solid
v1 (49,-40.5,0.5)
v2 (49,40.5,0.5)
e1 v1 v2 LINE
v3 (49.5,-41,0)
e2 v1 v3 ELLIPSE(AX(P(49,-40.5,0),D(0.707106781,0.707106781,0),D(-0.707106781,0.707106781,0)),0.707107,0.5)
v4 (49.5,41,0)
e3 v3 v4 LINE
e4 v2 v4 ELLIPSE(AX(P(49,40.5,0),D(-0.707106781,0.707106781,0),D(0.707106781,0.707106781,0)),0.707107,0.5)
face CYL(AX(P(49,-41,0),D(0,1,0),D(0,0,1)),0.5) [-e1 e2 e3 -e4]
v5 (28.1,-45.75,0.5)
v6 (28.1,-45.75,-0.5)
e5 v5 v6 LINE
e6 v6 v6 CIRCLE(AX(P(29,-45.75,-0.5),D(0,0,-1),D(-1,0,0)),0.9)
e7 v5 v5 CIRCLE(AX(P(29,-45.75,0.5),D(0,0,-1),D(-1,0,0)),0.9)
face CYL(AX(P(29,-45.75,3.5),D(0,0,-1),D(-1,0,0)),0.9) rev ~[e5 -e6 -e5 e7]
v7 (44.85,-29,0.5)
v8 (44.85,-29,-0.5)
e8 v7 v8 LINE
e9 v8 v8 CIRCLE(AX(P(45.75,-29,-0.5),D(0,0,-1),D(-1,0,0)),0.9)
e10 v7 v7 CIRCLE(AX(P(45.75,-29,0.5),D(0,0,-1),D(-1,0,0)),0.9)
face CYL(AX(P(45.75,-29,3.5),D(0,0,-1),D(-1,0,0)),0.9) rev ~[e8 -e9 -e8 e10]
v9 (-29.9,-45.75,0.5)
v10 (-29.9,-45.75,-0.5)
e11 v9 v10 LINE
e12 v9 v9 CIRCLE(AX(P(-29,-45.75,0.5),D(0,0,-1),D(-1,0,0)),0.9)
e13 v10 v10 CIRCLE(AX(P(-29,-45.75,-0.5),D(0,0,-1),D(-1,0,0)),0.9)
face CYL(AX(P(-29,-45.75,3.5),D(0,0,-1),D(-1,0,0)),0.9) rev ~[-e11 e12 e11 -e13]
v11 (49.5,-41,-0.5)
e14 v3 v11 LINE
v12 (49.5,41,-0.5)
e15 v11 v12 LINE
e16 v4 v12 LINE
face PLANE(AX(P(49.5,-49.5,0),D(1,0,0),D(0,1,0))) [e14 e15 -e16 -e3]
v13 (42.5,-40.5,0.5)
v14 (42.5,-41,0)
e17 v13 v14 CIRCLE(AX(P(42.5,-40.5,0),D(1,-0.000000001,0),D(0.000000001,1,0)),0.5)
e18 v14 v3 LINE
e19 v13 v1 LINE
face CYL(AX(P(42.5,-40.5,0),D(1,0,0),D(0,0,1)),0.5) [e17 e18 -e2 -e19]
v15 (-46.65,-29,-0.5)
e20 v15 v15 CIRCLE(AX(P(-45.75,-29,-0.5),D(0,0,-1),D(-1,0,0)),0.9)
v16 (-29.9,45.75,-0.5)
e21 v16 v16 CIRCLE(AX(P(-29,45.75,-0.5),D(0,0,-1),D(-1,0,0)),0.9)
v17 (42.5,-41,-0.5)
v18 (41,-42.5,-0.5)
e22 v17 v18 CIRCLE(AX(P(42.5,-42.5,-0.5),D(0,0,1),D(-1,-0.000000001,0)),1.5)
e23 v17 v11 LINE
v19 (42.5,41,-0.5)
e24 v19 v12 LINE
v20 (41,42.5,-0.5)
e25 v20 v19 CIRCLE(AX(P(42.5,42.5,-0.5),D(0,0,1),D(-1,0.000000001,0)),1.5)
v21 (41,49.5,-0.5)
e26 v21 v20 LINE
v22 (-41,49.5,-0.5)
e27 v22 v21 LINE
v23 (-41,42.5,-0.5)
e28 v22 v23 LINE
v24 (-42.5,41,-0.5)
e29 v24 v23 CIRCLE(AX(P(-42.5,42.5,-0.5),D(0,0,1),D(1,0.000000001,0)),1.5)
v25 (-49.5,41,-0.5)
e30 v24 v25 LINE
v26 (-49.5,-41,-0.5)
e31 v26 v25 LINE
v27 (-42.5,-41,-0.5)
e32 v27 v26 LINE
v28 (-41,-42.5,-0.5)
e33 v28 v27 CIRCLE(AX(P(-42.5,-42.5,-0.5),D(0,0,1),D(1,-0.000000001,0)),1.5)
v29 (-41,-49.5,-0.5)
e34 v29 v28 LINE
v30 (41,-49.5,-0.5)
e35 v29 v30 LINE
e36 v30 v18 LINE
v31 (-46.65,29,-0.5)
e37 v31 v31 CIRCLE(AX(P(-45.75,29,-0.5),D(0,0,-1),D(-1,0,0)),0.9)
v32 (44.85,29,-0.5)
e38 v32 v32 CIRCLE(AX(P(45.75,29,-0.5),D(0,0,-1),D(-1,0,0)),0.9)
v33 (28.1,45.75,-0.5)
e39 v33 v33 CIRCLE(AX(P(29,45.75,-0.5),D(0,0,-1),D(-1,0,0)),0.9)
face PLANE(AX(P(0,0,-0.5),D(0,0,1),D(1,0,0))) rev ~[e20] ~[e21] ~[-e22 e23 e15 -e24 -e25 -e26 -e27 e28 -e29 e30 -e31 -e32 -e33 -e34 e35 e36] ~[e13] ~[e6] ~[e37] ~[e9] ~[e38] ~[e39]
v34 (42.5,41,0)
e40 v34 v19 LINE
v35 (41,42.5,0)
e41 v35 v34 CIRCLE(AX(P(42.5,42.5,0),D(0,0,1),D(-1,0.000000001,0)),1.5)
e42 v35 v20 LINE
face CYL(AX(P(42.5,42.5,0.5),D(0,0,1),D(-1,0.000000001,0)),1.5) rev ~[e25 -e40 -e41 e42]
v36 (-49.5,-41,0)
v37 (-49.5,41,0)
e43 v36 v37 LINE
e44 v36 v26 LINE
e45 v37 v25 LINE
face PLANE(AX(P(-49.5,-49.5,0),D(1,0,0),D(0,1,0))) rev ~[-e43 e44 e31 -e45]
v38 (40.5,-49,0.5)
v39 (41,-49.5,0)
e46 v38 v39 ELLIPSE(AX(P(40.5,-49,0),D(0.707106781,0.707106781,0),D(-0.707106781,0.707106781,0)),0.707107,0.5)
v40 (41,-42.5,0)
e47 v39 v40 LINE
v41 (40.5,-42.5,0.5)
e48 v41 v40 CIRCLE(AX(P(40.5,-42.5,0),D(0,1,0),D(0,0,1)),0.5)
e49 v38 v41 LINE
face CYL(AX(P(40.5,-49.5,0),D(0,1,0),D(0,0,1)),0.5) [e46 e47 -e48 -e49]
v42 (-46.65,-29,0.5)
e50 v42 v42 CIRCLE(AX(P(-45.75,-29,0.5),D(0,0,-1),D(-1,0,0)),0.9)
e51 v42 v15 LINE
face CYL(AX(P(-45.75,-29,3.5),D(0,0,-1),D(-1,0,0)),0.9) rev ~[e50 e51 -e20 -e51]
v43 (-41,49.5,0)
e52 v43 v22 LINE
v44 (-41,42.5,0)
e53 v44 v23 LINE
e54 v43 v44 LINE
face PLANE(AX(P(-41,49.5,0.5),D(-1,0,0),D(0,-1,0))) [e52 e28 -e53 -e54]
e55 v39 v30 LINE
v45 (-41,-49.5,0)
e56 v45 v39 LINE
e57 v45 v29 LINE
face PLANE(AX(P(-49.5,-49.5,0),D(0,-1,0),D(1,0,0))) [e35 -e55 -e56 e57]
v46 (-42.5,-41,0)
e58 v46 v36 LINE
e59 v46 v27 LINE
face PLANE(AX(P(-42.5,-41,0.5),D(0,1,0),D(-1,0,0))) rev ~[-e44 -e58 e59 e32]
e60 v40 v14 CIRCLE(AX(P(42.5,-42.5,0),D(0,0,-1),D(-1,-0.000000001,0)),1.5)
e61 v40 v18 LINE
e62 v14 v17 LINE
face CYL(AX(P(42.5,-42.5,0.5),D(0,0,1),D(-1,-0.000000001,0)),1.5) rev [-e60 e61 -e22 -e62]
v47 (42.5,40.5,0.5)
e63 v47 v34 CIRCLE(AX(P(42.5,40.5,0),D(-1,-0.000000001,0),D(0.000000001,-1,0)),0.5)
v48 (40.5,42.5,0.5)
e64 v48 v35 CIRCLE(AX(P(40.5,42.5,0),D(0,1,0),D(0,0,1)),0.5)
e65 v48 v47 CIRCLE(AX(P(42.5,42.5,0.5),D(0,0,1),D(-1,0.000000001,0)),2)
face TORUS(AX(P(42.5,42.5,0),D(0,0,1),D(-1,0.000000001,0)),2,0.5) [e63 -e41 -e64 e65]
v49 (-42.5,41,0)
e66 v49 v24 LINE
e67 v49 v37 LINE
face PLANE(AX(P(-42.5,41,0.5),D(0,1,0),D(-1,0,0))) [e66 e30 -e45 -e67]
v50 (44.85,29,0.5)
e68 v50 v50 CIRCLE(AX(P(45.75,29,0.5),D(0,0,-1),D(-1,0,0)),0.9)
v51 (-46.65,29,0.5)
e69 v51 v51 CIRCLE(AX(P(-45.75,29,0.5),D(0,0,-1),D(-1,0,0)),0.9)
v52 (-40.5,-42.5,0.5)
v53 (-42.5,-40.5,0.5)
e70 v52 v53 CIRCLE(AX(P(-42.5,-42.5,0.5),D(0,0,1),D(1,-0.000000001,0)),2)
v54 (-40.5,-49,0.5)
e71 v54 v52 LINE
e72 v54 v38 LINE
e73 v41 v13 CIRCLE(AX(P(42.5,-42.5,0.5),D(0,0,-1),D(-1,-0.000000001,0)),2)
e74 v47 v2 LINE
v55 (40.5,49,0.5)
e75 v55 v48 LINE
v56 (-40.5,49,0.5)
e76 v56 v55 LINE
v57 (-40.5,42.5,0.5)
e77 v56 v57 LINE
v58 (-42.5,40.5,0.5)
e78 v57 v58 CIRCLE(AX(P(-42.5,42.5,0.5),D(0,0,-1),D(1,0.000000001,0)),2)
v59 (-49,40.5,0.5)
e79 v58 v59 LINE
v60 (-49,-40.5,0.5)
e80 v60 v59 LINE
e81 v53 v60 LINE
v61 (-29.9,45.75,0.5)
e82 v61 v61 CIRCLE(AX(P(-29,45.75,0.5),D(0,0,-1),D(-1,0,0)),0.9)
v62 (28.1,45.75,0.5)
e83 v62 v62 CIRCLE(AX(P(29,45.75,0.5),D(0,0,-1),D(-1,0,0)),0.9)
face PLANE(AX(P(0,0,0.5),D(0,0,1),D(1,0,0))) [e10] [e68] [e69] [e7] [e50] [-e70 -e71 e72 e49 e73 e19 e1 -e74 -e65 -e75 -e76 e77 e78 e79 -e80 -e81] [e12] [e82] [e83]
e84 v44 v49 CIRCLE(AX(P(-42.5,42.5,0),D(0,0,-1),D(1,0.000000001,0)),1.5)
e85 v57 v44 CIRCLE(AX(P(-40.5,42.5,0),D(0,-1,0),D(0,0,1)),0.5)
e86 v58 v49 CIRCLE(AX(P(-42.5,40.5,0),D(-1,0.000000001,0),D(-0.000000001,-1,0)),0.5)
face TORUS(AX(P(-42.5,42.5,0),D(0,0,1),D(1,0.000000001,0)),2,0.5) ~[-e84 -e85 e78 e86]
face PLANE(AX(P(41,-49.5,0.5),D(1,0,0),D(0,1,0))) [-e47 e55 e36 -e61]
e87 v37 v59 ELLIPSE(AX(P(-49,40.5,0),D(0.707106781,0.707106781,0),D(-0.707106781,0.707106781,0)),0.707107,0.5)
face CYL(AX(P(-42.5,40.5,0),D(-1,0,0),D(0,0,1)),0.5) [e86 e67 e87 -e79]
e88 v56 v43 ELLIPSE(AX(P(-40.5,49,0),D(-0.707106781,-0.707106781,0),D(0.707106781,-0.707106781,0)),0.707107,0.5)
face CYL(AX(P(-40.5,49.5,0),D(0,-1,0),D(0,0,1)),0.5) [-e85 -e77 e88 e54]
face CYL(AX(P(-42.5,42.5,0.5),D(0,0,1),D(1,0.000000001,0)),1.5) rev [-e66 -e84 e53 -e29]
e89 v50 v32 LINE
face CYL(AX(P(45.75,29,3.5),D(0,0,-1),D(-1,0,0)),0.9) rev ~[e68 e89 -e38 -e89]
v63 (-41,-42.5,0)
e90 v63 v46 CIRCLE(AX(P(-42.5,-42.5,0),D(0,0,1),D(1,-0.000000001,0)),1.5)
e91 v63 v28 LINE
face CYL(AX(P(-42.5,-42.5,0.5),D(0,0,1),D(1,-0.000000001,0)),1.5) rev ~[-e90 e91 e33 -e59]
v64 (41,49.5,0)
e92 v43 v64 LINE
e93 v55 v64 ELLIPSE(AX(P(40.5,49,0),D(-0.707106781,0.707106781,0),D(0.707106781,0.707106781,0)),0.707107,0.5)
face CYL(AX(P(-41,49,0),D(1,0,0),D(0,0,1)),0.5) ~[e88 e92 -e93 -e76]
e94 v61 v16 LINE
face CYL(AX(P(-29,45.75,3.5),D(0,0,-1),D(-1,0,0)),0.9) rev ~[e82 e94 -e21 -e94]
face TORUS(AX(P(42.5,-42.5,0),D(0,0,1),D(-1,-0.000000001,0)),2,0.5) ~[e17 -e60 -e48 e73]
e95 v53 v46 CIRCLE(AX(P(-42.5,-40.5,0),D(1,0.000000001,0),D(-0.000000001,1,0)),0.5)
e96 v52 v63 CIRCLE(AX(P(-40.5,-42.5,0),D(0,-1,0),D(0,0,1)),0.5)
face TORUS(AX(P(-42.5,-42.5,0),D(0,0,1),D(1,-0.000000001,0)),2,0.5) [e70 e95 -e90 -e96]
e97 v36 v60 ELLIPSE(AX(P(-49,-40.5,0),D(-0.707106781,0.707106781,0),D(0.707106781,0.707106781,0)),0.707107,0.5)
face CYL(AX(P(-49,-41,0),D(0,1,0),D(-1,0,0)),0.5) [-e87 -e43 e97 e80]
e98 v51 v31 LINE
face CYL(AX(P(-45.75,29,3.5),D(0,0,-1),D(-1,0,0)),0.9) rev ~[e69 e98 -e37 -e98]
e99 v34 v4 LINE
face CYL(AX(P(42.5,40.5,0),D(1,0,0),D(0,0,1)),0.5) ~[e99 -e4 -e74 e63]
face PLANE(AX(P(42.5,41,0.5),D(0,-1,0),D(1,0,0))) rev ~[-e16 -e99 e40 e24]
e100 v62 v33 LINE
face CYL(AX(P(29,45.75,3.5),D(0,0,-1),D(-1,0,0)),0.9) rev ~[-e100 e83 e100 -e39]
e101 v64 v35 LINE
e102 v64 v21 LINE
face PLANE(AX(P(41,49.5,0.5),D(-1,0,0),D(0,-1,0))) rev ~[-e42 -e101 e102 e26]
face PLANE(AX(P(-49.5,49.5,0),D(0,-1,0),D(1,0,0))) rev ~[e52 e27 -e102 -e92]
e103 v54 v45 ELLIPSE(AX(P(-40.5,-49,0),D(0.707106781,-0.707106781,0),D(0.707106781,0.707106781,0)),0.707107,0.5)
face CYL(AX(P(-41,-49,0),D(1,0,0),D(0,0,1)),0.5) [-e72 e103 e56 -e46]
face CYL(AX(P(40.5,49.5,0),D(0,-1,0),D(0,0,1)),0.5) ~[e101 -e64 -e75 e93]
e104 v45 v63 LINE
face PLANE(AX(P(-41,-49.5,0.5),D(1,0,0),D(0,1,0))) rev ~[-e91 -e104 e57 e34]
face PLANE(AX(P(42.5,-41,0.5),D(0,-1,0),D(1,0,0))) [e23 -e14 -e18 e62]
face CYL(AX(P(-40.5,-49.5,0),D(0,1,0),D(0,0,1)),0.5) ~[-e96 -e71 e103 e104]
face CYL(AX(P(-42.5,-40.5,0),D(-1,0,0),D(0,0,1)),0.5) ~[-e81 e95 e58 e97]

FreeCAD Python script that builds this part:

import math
import FreeCAD as App
import Part
import Sketcher
from FreeCAD import Vector


def edges_at(feature, points):
    """Names of the edges that pass closest to the given points."""
    edges = feature.Shape.Edges
    near = lambda p: min(range(len(edges)), key=lambda i: edges[i].distToShape(Part.Vertex(*p))[0])
    return sorted({f"Edge{near(p) + 1}" for p in points})


def add_polygon(sketch, points):
    """Adds a closed chain of lines whose ends are joined by coincident constraints."""
    first, n = sketch.GeometryCount, len(points)
    for a, b in zip(points, points[1:] + points[:1]):
        sketch.addGeometry(Part.LineSegment(App.Vector(*a, 0), App.Vector(*b, 0)), False)
    for i in range(n):
        sketch.addConstraint(Sketcher.Constraint("Coincident", first + i, 2, first + (i + 1) % n, 1))

doc = App.newDocument("Part")
body = doc.addObject("PartDesign::Body", "Body")

sketch1 = body.newObject("Sketcher::SketchObject", "Sketch")
sketch1.AttachmentSupport = (doc.getObject("XY_Plane"), [""])
sketch1.MapMode = "FlatFace"
add_polygon(sketch1, [(-50, 50), (-50, -50), (50, -50), (50, 50)])
sketch1.addConstraint([
    Sketcher.Constraint("Vertical", 0),
    Sketcher.Constraint("Horizontal", 1),
    Sketcher.Constraint("Vertical", 2),
    Sketcher.Constraint("Horizontal", 3),
    Sketcher.Constraint("Symmetric", 0, 2, 2, 2, -1, 1),
    Sketcher.Constraint("Equal", 3, 0),
    Sketcher.Constraint("DistanceX", 1, 1, 1, 2, 99.0),
])
pad1 = body.newObject("PartDesign::Pad", "Pad")
pad1.Profile = sketch1
pad1.Length = 1
pad1.Midplane = True

sketch2 = body.newObject("Sketcher::SketchObject", "Sketch001")
sketch2.AttachmentSupport = (doc.getObject("XY_Plane"), [""])
sketch2.MapMode = "FlatFace"
sketch2.AttachmentOffset = App.Placement(Vector(0, 0, 0.5), App.Rotation())
sketch2.addGeometry([
    Part.LineSegment(Vector(-41, 49.5, 0), Vector(-49.5, 49.5, 0)),
    Part.LineSegment(Vector(-49.5, 49.5, 0), Vector(-49.5, 41, 0)),
    Part.LineSegment(Vector(-49.5, 41, 0), Vector(-42.5, 41, 0)),
    Part.ArcOfCircle(Part.Circle(Vector(-42.5, 42.5, 0), Vector(0, 0, 1), 1.5), math.radians(-90), math.radians(0)),
    Part.LineSegment(Vector(-41, 42.5, 0), Vector(-41, 49.5, 0)),
    Part.LineSegment(Vector(49.5, 49.5, 0), Vector(41, 49.5, 0)),
    Part.LineSegment(Vector(41, 49.5, 0), Vector(41, 42.5, 0)),
    Part.ArcOfCircle(Part.Circle(Vector(42.5, 42.5, 0), Vector(0, 0, 1), 1.5), math.radians(180), math.radians(270)),
    Part.LineSegment(Vector(42.5, 41, 0), Vector(49.5, 41, 0)),
    Part.LineSegment(Vector(49.5, 41, 0), Vector(49.5, 49.5, 0)),
    Part.LineSegment(Vector(-49.5, -49.5, 0), Vector(-41, -49.5, 0)),
    Part.LineSegment(Vector(-41, -49.5, 0), Vector(-41, -42.5, 0)),
    Part.ArcOfCircle(Part.Circle(Vector(-42.5, -42.5, 0), Vector(0, 0, 1), 1.5), math.radians(0), math.radians(90)),
    Part.LineSegment(Vector(-42.5, -41, 0), Vector(-49.5, -41, 0)),
    Part.LineSegment(Vector(-49.5, -41, 0), Vector(-49.5, -49.5, 0)),
    Part.LineSegment(Vector(41, -49.5, 0), Vector(49.5, -49.5, 0)),
    Part.LineSegment(Vector(49.5, -49.5, 0), Vector(49.5, -41, 0)),
    Part.LineSegment(Vector(49.5, -41, 0), Vector(42.5, -41, 0)),
    Part.ArcOfCircle(Part.Circle(Vector(42.5, -42.5, 0), Vector(0, 0, 1), 1.5), math.radians(90), math.radians(180)),
    Part.LineSegment(Vector(41, -42.5, 0), Vector(41, -49.5, 0)),
], False)
sketch2.addConstraint([
    Sketcher.Constraint("Coincident", 0, 2, 1, 1),
    Sketcher.Constraint("Coincident", 1, 2, 2, 1),
    Sketcher.Constraint("Tangent", 2, 2, 3, 1),
    Sketcher.Constraint("Tangent", 3, 2, 4, 1),
    Sketcher.Constraint("Coincident", 4, 2, 0, 1),
    Sketcher.Constraint("Coincident", 5, 2, 6, 1),
    Sketcher.Constraint("Tangent", 6, 2, 7, 1),
    Sketcher.Constraint("Tangent", 7, 2, 8, 1),
    Sketcher.Constraint("Coincident", 8, 2, 9, 1),
    Sketcher.Constraint("Coincident", 9, 2, 5, 1),
    Sketcher.Constraint("Coincident", 10, 2, 11, 1),
    Sketcher.Constraint("Tangent", 11, 2, 12, 1),
    Sketcher.Constraint("Tangent", 12, 2, 13, 1),
    Sketcher.Constraint("Coincident", 13, 2, 14, 1),
    Sketcher.Constraint("Coincident", 14, 2, 10, 1),
    Sketcher.Constraint("Coincident", 15, 2, 16, 1),
    Sketcher.Constraint("Coincident", 16, 2, 17, 1),
    Sketcher.Constraint("Tangent", 17, 2, 18, 1),
    Sketcher.Constraint("Tangent", 18, 2, 19, 1),
    Sketcher.Constraint("Coincident", 19, 2, 15, 1),
    Sketcher.Constraint("Horizontal", 0),
    Sketcher.Constraint("Vertical", 1),
    Sketcher.Constraint("Horizontal", 2),
    Sketcher.Constraint("Vertical", 4),
    Sketcher.Constraint("Horizontal", 5),
    Sketcher.Constraint("Vertical", 6),
    Sketcher.Constraint("Horizontal", 8),
    Sketcher.Constraint("Vertical", 9),
    Sketcher.Constraint("Horizontal", 10),
    Sketcher.Constraint("Vertical", 11),
    Sketcher.Constraint("Horizontal", 13),
    Sketcher.Constraint("Vertical", 14),
    Sketcher.Constraint("Horizontal", 15),
    Sketcher.Constraint("Vertical", 16),
    Sketcher.Constraint("Horizontal", 17),
    Sketcher.Constraint("Vertical", 19),
    Sketcher.Constraint("Equal", 3, 7),
    Sketcher.Constraint("Equal", 7, 12),
    Sketcher.Constraint("Equal", 12, 18),
    Sketcher.Constraint("Symmetric", 7, 3, 12, 3, -1, 1),
    Sketcher.Constraint("Symmetric", 3, 3, 18, 3, -1, 1),
    Sketcher.Constraint("Symmetric", 9, 2, 14, 2, -1, 1),
    Sketcher.Constraint("Symmetric", 0, 2, 15, 2, -1, 1),
    Sketcher.Constraint("Symmetric", 3, 3, 7, 3, -2),
    Sketcher.Constraint("Symmetric", 0, 2, 9, 2, -2),
    Sketcher.Constraint("Equal", 15, 1),
    Sketcher.Constraint("Radius", 3, 1.5),
    Sketcher.Constraint("DistanceX", 2, 1, 2, 2, 7.0),
    Sketcher.Constraint("DistanceY", -1, 1, 1, 2, 41.0),
    Sketcher.Constraint("DistanceX", 3, 2, -1, 1, 41.0),
])
pocket1 = body.newObject("PartDesign::Pocket", "Pocket")
pocket1.Profile = sketch2
pocket1.Type = "ThroughAll"

sketch3 = body.newObject("Sketcher::SketchObject", "Sketch002")
sketch3.AttachmentSupport = (doc.getObject("XY_Plane"), [""])
sketch3.MapMode = "FlatFace"
sketch3.AttachmentOffset = App.Placement(Vector(0, 0, 0.5), App.Rotation())
sketch3.addGeometry([
    Part.Circle(Vector(-45.8, 29, 0), Vector(0, 0, 1), 0.9),
    Part.Circle(Vector(-29, 45.8, 0), Vector(0, 0, 1), 0.9),
    Part.Circle(Vector(29, 45.8, 0), Vector(0, 0, 1), 0.9),
    Part.Circle(Vector(45.8, 29, 0), Vector(0, 0, 1), 0.9),
    Part.Circle(Vector(45.8, -29, 0), Vector(0, 0, 1), 0.9),
    Part.Circle(Vector(29, -45.8, 0), Vector(0, 0, 1), 0.9),
    Part.Circle(Vector(-29, -45.8, 0), Vector(0, 0, 1), 0.9),
    Part.Circle(Vector(-45.8, -29, 0), Vector(0, 0, 1), 0.9),
], False)
sketch3.addConstraint([
    Sketcher.Constraint("Equal", 0, 1),
    Sketcher.Constraint("Equal", 1, 2),
    Sketcher.Constraint("Equal", 2, 3),
    Sketcher.Constraint("Equal", 3, 4),
    Sketcher.Constraint("Equal", 4, 5),
    Sketcher.Constraint("Equal", 5, 6),
    Sketcher.Constraint("Equal", 6, 7),
    Sketcher.Constraint("Symmetric", 0, 3, 4, 3, -1, 1),
    Sketcher.Constraint("Symmetric", 1, 3, 5, 3, -1, 1),
    Sketcher.Constraint("Symmetric", 2, 3, 6, 3, -1, 1),
    Sketcher.Constraint("Symmetric", 3, 3, 7, 3, -1, 1),
    Sketcher.Constraint("Symmetric", 1, 3, 2, 3, -2),
    Sketcher.Constraint("Symmetric", 0, 3, 3, 3, -2),
    Sketcher.Constraint("Diameter", 0, 1.8),
    Sketcher.Constraint("DistanceY", -1, 1, 0, 3, 29.0),
    Sketcher.Constraint("DistanceX", 1, 3, -1, 1, 29.0),
    Sketcher.Constraint("DistanceX", 0, 3, 3, 3, 91.5),
    Sketcher.Constraint("DistanceY", 5, 3, 2, 3, 91.5),
])
doc.recompute()
hole = body.newObject("PartDesign::Hole", "Hole")
hole.Profile = sketch3
hole.ThreadType = "None"
hole.Diameter = 1.8
hole.DepthType = "Dimension"
hole.Depth = 3
hole.DrillPoint = "Angled"
hole.DrillPointAngle = 118
doc.recompute()

fillet = body.newObject("PartDesign::Fillet", "Fillet")
fillet.Base = (hole, edges_at(hole, [
    (-49.5, 0, 0.5),
    (-46, 41, 0.5),
    (-41.439, 41.439, 0.5),
    (-41, 46, 0.5),
    (0, 49.5, 0.5),
    (41.439, 41.439, 0.5),
    (46, 41, 0.5),
    (41, 46, 0.5),
    (49.5, 0, 0.5),
    (41.439, -41.439, 0.5),
    (41, -46, 0.5),
    (46, -41, 0.5),
    (0, -49.5, 0.5),
    (-41, -46, 0.5),
    (-41.439, -41.439, 0.5),
    (-46, -41, 0.5),
]))
fillet.Radius = 0.5

doc.recompute()
